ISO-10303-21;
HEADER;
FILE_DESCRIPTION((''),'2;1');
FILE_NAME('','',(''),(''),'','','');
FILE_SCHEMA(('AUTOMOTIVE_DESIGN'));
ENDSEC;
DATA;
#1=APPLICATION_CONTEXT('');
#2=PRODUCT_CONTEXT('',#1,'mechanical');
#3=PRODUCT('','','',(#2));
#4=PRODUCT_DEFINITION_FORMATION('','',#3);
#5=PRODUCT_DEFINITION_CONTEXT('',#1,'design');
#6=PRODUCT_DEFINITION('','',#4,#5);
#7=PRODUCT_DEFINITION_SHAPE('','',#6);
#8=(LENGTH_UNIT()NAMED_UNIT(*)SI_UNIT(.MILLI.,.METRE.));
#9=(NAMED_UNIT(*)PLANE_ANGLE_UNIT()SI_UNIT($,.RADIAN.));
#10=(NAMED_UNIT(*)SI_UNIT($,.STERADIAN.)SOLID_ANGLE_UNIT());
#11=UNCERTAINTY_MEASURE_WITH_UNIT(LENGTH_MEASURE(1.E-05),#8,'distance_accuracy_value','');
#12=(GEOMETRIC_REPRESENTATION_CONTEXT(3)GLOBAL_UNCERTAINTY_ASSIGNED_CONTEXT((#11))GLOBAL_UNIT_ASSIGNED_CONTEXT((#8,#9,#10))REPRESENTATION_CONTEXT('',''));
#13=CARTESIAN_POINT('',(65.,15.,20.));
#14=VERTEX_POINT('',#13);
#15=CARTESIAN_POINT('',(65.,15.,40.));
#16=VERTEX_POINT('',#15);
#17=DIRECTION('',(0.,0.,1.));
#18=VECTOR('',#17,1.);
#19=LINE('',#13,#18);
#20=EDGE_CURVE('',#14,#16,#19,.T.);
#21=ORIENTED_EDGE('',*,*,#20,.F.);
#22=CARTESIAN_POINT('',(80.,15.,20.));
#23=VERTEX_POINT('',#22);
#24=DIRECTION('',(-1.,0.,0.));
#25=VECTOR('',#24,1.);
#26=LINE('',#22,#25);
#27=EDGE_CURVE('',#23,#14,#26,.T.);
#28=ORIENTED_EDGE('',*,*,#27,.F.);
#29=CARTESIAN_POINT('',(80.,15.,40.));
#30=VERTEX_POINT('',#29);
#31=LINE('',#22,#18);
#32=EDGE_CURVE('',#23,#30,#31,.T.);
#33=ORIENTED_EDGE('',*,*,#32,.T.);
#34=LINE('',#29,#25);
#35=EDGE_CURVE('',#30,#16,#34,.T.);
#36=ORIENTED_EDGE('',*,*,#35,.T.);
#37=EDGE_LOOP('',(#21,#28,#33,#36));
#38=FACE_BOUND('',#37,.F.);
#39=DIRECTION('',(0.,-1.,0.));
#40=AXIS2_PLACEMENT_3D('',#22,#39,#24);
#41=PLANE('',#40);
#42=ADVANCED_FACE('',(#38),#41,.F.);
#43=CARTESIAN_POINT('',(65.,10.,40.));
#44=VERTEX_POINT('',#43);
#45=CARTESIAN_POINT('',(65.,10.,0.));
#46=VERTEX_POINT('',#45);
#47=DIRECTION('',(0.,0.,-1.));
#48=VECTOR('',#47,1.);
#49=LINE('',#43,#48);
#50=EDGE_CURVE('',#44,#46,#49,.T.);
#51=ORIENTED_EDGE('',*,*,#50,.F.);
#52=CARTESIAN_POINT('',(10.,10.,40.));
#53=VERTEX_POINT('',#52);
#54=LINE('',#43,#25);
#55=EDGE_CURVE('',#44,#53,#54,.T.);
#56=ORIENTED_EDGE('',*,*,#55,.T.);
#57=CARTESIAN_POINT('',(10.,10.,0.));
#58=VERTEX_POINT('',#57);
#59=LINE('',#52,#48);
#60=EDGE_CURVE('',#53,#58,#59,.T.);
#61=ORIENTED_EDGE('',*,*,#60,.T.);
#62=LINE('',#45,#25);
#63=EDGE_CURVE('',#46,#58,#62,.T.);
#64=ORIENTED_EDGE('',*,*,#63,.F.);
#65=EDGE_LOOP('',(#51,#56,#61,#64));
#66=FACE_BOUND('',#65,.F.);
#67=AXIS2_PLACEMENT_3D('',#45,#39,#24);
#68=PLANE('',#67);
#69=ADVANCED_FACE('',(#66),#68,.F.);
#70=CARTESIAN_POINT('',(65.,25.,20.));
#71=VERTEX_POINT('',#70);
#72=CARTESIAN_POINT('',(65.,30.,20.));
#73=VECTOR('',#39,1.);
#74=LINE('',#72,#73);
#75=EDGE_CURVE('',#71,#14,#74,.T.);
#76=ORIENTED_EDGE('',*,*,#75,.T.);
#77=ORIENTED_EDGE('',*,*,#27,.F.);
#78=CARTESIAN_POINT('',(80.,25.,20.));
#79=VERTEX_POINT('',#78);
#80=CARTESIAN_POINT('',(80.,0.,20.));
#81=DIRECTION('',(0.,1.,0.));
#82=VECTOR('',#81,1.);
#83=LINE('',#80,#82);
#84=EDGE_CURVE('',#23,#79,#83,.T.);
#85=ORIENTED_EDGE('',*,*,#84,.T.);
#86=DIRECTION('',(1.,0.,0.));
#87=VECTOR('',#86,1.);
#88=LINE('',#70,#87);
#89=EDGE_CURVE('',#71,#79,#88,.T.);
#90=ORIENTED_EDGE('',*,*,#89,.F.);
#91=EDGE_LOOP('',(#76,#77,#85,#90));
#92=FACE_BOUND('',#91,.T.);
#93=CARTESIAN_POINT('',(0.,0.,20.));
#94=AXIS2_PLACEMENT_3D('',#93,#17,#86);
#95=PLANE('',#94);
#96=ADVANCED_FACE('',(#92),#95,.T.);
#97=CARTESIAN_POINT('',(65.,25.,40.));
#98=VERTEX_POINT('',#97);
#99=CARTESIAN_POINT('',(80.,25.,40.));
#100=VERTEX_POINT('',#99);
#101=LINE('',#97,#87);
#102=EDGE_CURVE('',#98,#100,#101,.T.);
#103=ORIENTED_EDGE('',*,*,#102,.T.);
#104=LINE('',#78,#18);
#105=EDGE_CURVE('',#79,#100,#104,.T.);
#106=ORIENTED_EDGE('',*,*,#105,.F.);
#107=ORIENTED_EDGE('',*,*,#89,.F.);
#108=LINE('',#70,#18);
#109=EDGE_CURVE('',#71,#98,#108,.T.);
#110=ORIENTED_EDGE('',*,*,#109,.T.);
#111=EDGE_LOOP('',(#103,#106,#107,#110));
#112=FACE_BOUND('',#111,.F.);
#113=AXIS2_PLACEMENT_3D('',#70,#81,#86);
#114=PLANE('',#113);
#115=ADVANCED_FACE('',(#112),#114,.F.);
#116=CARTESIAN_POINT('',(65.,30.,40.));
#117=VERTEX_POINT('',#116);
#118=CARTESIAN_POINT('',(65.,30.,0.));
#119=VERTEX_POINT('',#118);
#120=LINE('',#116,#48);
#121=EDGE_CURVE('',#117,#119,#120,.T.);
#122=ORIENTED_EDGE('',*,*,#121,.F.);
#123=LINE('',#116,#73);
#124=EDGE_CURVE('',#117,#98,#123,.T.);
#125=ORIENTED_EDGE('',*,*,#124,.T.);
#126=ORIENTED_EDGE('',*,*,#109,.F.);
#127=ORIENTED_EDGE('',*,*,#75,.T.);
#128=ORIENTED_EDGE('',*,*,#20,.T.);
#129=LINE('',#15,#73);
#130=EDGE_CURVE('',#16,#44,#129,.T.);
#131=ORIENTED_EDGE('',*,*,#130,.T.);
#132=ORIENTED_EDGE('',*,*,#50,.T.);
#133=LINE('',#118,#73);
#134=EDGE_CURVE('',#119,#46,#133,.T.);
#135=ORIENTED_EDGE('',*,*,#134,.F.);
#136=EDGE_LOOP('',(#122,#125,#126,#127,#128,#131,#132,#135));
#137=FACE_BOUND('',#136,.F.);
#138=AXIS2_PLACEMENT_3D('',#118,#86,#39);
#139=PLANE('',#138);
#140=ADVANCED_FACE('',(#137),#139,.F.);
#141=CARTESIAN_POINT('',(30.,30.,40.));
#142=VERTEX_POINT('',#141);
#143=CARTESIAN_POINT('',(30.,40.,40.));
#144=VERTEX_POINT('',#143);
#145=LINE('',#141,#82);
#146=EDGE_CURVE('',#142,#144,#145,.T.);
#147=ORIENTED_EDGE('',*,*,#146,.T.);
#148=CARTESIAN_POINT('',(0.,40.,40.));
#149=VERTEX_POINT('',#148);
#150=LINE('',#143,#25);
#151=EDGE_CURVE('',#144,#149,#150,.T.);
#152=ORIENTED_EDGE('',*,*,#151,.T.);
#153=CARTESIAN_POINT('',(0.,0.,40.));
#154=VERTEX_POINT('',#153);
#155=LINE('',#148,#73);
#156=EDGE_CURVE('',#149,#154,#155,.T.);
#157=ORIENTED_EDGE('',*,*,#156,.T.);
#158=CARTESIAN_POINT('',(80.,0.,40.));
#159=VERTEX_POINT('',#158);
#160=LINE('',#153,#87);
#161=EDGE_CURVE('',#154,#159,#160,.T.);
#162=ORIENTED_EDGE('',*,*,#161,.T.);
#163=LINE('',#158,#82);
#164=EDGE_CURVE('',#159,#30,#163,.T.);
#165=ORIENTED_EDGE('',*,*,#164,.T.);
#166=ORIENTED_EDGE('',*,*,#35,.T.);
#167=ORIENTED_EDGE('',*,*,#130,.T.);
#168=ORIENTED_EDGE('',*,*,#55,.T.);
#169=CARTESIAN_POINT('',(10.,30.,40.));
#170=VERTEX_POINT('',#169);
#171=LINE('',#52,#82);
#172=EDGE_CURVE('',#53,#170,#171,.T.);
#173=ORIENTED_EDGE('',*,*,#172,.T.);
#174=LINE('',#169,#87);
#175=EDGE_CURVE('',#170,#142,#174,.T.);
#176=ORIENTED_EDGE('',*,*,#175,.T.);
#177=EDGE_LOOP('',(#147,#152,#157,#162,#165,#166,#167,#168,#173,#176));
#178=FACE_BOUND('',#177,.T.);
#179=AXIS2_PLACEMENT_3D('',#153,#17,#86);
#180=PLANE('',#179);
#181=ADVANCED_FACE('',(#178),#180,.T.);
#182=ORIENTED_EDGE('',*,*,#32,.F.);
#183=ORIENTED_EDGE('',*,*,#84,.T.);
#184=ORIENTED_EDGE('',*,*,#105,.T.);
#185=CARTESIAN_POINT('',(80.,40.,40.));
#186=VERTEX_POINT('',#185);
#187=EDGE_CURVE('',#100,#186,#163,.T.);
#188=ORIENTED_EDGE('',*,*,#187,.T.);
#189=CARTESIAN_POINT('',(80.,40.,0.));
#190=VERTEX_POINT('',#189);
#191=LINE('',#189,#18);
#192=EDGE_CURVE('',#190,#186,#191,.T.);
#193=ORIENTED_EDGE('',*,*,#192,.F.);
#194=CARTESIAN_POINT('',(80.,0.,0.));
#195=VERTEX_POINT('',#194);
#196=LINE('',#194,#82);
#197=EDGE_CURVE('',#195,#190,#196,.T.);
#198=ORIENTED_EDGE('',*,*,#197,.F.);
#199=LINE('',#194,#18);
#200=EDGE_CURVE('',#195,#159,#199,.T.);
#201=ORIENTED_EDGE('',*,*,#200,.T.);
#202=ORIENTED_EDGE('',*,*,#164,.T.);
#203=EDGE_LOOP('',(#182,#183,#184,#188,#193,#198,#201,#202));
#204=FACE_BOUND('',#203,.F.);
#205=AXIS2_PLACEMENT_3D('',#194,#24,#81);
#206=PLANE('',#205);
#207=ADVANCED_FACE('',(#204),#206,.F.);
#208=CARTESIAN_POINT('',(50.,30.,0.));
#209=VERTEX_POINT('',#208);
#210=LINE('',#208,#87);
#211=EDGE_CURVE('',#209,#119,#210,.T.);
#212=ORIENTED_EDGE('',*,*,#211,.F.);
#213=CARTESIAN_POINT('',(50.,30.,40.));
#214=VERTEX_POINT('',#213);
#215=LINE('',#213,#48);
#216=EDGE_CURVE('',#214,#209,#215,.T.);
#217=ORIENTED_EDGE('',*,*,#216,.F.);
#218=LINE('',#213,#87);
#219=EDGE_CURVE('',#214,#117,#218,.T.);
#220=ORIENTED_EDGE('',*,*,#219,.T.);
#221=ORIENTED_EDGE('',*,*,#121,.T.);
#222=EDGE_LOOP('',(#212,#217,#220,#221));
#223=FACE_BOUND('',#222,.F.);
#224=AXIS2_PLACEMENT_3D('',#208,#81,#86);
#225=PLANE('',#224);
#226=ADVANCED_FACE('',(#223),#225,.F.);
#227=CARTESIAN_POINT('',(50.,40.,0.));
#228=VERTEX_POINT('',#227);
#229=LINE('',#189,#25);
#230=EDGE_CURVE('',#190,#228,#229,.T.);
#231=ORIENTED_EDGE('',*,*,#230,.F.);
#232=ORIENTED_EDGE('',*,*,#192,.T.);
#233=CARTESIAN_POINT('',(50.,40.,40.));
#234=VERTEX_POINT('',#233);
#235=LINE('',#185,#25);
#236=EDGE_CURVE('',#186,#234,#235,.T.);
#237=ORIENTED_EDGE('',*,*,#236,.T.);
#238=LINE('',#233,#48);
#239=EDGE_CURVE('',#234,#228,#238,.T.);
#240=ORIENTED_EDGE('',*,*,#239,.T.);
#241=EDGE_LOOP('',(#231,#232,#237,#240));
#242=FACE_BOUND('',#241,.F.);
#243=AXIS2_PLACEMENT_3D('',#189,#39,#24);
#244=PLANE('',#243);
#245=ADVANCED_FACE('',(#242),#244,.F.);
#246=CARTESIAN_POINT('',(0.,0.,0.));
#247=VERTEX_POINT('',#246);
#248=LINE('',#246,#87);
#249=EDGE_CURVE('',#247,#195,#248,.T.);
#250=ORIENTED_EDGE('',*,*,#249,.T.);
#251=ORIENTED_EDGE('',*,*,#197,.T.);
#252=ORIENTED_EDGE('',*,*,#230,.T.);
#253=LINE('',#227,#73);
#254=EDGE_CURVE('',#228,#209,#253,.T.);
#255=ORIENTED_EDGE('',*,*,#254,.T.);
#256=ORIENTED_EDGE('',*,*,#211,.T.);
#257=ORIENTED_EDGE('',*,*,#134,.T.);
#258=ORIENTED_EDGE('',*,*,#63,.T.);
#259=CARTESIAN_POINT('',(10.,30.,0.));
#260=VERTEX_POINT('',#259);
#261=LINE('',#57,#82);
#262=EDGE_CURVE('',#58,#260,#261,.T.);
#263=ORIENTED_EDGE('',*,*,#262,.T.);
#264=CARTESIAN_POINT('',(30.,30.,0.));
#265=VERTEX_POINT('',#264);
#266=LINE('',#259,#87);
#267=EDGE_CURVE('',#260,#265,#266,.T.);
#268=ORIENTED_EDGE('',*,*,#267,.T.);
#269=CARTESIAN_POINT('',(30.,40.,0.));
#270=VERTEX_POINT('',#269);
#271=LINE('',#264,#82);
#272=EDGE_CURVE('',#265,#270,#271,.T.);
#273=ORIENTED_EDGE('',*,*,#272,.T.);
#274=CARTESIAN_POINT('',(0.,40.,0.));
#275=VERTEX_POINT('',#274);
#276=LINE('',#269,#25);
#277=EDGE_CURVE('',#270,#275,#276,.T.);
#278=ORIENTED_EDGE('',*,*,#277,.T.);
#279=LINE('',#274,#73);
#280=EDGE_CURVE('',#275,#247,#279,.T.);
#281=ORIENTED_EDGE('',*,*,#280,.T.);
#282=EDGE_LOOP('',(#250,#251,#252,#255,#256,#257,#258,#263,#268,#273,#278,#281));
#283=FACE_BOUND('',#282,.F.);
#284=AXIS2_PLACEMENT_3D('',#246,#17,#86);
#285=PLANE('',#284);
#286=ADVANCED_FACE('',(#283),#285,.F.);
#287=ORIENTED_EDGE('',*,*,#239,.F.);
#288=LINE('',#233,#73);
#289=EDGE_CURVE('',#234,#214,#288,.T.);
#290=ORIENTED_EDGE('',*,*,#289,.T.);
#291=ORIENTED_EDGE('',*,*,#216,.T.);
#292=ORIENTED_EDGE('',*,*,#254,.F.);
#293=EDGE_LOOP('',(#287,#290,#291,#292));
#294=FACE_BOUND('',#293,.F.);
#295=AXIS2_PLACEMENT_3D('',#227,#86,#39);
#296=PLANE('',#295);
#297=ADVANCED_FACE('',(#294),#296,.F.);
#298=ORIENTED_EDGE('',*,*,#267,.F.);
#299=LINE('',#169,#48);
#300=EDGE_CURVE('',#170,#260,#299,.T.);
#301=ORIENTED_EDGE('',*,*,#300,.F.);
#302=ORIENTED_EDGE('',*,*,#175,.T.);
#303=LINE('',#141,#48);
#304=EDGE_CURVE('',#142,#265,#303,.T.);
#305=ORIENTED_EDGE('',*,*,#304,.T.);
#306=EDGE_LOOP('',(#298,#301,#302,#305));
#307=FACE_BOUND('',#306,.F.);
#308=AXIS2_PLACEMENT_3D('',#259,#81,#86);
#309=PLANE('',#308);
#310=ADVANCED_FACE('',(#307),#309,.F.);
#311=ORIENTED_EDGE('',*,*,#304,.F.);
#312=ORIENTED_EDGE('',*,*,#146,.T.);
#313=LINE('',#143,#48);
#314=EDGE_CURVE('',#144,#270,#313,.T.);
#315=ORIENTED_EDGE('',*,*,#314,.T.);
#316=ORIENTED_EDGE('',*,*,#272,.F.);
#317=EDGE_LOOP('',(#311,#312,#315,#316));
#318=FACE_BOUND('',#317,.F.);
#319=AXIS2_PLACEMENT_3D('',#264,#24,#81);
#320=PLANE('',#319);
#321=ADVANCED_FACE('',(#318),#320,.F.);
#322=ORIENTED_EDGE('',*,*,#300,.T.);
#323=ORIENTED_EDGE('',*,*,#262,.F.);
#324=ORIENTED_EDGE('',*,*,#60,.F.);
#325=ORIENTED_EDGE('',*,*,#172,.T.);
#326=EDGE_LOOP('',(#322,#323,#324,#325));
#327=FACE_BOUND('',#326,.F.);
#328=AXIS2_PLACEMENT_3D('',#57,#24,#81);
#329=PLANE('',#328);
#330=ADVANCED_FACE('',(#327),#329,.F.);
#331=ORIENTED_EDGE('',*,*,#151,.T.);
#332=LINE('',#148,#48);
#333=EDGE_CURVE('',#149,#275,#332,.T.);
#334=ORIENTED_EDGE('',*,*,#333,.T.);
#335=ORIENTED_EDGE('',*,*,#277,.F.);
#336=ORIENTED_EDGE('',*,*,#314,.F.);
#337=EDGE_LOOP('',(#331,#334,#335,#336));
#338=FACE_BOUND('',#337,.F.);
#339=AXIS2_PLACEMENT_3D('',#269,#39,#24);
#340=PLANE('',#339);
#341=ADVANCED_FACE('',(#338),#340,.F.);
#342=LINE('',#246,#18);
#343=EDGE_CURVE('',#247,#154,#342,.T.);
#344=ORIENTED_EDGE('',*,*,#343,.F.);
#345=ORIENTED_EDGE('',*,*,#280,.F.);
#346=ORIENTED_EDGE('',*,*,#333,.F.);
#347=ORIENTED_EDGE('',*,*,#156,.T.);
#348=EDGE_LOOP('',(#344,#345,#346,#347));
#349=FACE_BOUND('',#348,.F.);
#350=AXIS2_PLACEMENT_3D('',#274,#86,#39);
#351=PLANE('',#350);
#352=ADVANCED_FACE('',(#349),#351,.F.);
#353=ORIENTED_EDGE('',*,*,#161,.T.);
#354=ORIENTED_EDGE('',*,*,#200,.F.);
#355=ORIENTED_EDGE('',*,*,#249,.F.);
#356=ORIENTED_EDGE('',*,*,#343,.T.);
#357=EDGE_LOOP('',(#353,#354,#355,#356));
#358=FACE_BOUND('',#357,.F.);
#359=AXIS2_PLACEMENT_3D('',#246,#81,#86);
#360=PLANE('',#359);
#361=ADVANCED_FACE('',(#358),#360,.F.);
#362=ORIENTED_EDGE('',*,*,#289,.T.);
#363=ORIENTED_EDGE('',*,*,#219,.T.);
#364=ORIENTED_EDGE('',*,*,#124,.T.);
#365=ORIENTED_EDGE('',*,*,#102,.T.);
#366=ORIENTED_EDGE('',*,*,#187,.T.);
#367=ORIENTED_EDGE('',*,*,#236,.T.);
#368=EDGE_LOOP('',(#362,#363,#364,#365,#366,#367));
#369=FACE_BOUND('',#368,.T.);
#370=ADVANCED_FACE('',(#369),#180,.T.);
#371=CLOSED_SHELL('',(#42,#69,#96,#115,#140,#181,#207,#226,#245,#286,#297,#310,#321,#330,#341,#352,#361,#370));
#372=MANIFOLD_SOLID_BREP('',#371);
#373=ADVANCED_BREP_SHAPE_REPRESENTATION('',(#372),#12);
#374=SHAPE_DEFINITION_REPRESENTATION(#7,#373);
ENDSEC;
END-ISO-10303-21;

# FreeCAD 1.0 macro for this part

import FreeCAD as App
import Part
import Sketcher

V = App.Vector

doc = App.newDocument("Part")
body = doc.addObject("PartDesign::Body", "Body")

sketch1 = body.newObject("Sketcher::SketchObject", "Sketch")
sketch1.AttachmentSupport = (doc.getObject("XY_Plane"), [""])
sketch1.MapMode = "FlatFace"
sketch1.addGeometry(Part.LineSegment(V(0, 40, 0), V(0, 0, 0)), False)
sketch1.addGeometry(Part.LineSegment(V(0, 0, 0), V(80, 0, 0)), False)
sketch1.addGeometry(Part.LineSegment(V(80, 0, 0), V(80, 40, 0)), False)
sketch1.addGeometry(Part.LineSegment(V(80, 40, 0), V(50, 40, 0)), False)
sketch1.addGeometry(Part.LineSegment(V(50, 40, 0), V(50, 30, 0)), False)
sketch1.addGeometry(Part.LineSegment(V(50, 30, 0), V(65, 30, 0)), False)
sketch1.addGeometry(Part.LineSegment(V(65, 30, 0), V(65, 10, 0)), False)
sketch1.addGeometry(Part.LineSegment(V(65, 10, 0), V(10, 10, 0)), False)
sketch1.addGeometry(Part.LineSegment(V(10, 10, 0), V(10, 30, 0)), False)
sketch1.addGeometry(Part.LineSegment(V(10, 30, 0), V(30, 30, 0)), False)
sketch1.addGeometry(Part.LineSegment(V(30, 30, 0), V(30, 40, 0)), False)
sketch1.addGeometry(Part.LineSegment(V(30, 40, 0), V(0, 40, 0)), False)
sketch1.addConstraint(Sketcher.Constraint("Coincident", 0, 2, 1, 1))
sketch1.addConstraint(Sketcher.Constraint("Coincident", 1, 2, 2, 1))
sketch1.addConstraint(Sketcher.Constraint("Coincident", 2, 2, 3, 1))
sketch1.addConstraint(Sketcher.Constraint("Coincident", 3, 2, 4, 1))
sketch1.addConstraint(Sketcher.Constraint("Coincident", 4, 2, 5, 1))
sketch1.addConstraint(Sketcher.Constraint("Coincident", 5, 2, 6, 1))
sketch1.addConstraint(Sketcher.Constraint("Coincident", 6, 2, 7, 1))
sketch1.addConstraint(Sketcher.Constraint("Coincident", 7, 2, 8, 1))
sketch1.addConstraint(Sketcher.Constraint("Coincident", 8, 2, 9, 1))
sketch1.addConstraint(Sketcher.Constraint("Coincident", 9, 2, 10, 1))
sketch1.addConstraint(Sketcher.Constraint("Coincident", 10, 2, 11, 1))
sketch1.addConstraint(Sketcher.Constraint("Coincident", 11, 2, 0, 1))
sketch1.addConstraint(Sketcher.Constraint("Vertical", 0))
sketch1.addConstraint(Sketcher.Constraint("Horizontal", 1))
sketch1.addConstraint(Sketcher.Constraint("Vertical", 2))
sketch1.addConstraint(Sketcher.Constraint("Horizontal", 3))
sketch1.addConstraint(Sketcher.Constraint("Vertical", 4))
sketch1.addConstraint(Sketcher.Constraint("Horizontal", 5))
sketch1.addConstraint(Sketcher.Constraint("Vertical", 6))
sketch1.addConstraint(Sketcher.Constraint("Horizontal", 7))
sketch1.addConstraint(Sketcher.Constraint("Vertical", 8))
sketch1.addConstraint(Sketcher.Constraint("Horizontal", 9))
sketch1.addConstraint(Sketcher.Constraint("Vertical", 10))
sketch1.addConstraint(Sketcher.Constraint("Horizontal", 11))
sketch1.addConstraint(Sketcher.Constraint("Coincident", 0, 2, -1, 1))
sketch1.addConstraint(Sketcher.Constraint("Horizontal", 5, 2, 8, 2))
sketch1.addConstraint(Sketcher.Constraint("Horizontal", 3, 2, 10, 2))
sketch1.addConstraint(Sketcher.Constraint("Equal", 3, 11))
sketch1.addConstraint(Sketcher.Constraint("Equal", 9, 6))
sketch1.addConstraint(Sketcher.Constraint("DistanceX", 1, 1, 1, 2, 80.0))
sketch1.addConstraint(Sketcher.Constraint("DistanceX", 3, 2, 3, 1, 30.0))
sketch1.addConstraint(Sketcher.Constraint("DistanceY", 0, 2, 0, 1, 40.0))
sketch1.addConstraint(Sketcher.Constraint("DistanceY", -1, 1, 4, 2, 30.0))
sketch1.addConstraint(Sketcher.Constraint("DistanceY", 6, 2, 2, 2, 30.0))
sketch1.addConstraint(Sketcher.Constraint("DistanceX", 5, 1, 5, 2, 15.0))
pad1 = body.newObject("PartDesign::Pad", "Pad")
pad1.Profile = sketch1
pad1.Length = 20

sketch2 = body.newObject("Sketcher::SketchObject", "Sketch001")
sketch2.AttachmentSupport = (doc.getObject("XY_Plane"), [""])
sketch2.MapMode = "FlatFace"
sketch2.AttachmentOffset = App.Placement(V(0, 0, 20), App.Rotation())
sketch2.addGeometry(Part.LineSegment(V(10, 30, 0), V(30, 30, 0)), False)
sketch2.addGeometry(Part.LineSegment(V(30, 30, 0), V(30, 40, 0)), False)
sketch2.addGeometry(Part.LineSegment(V(30, 40, 0), V(0, 40, 0)), False)
sketch2.addGeometry(Part.LineSegment(V(0, 40, 0), V(0, 0, 0)), False)
sketch2.addGeometry(Part.LineSegment(V(0, 0, 0), V(80, 0, 0)), False)
sketch2.addGeometry(Part.LineSegment(V(80, 0, 0), V(80, 15, 0)), False)
sketch2.addGeometry(Part.LineSegment(V(80, 15, 0), V(65, 15, 0)), False)
sketch2.addGeometry(Part.LineSegment(V(65, 15, 0), V(65, 10, 0)), False)
sketch2.addGeometry(Part.LineSegment(V(65, 10, 0), V(10, 10, 0)), False)
sketch2.addGeometry(Part.LineSegment(V(10, 10, 0), V(10, 30, 0)), False)
sketch2.addGeometry(Part.LineSegment(V(65, 30, 0), V(65, 25, 0)), False)
sketch2.addGeometry(Part.LineSegment(V(65, 25, 0), V(80, 25, 0)), False)
sketch2.addGeometry(Part.LineSegment(V(80, 25, 0), V(80, 40, 0)), False)
sketch2.addGeometry(Part.LineSegment(V(80, 40, 0), V(50, 40, 0)), False)
sketch2.addGeometry(Part.LineSegment(V(50, 40, 0), V(50, 30, 0)), False)
sketch2.addGeometry(Part.LineSegment(V(50, 30, 0), V(65, 30, 0)), False)
sketch2.addConstraint(Sketcher.Constraint("Coincident", 0, 2, 1, 1))
sketch2.addConstraint(Sketcher.Constraint("Coincident", 1, 2, 2, 1))
sketch2.addConstraint(Sketcher.Constraint("Coincident", 2, 2, 3, 1))
sketch2.addConstraint(Sketcher.Constraint("Coincident", 3, 2, 4, 1))
sketch2.addConstraint(Sketcher.Constraint("Coincident", 4, 2, 5, 1))
sketch2.addConstraint(Sketcher.Constraint("Coincident", 5, 2, 6, 1))
sketch2.addConstraint(Sketcher.Constraint("Coincident", 6, 2, 7, 1))
sketch2.addConstraint(Sketcher.Constraint("Coincident", 7, 2, 8, 1))
sketch2.addConstraint(Sketcher.Constraint("Coincident", 8, 2, 9, 1))
sketch2.addConstraint(Sketcher.Constraint("Coincident", 9, 2, 0, 1))
sketch2.addConstraint(Sketcher.Constraint("Coincident", 10, 2, 11, 1))
sketch2.addConstraint(Sketcher.Constraint("Coincident", 11, 2, 12, 1))
sketch2.addConstraint(Sketcher.Constraint("Coincident", 12, 2, 13, 1))
sketch2.addConstraint(Sketcher.Constraint("Coincident", 13, 2, 14, 1))
sketch2.addConstraint(Sketcher.Constraint("Coincident", 14, 2, 15, 1))
sketch2.addConstraint(Sketcher.Constraint("Coincident", 15, 2, 10, 1))
sketch2.addConstraint(Sketcher.Constraint("Horizontal", 0))
sketch2.addConstraint(Sketcher.Constraint("Vertical", 1))
sketch2.addConstraint(Sketcher.Constraint("Horizontal", 2))
sketch2.addConstraint(Sketcher.Constraint("Vertical", 3))
sketch2.addConstraint(Sketcher.Constraint("Horizontal", 4))
sketch2.addConstraint(Sketcher.Constraint("Vertical", 5))
sketch2.addConstraint(Sketcher.Constraint("Horizontal", 6))
sketch2.addConstraint(Sketcher.Constraint("Vertical", 7))
sketch2.addConstraint(Sketcher.Constraint("Horizontal", 8))
sketch2.addConstraint(Sketcher.Constraint("Vertical", 9))
sketch2.addConstraint(Sketcher.Constraint("Vertical", 10))
sketch2.addConstraint(Sketcher.Constraint("Horizontal", 11))
sketch2.addConstraint(Sketcher.Constraint("Vertical", 12))
sketch2.addConstraint(Sketcher.Constraint("Horizontal", 13))
sketch2.addConstraint(Sketcher.Constraint("Vertical", 14))
sketch2.addConstraint(Sketcher.Constraint("Horizontal", 15))
sketch2.addConstraint(Sketcher.Constraint("Coincident", 3, 2, -1, 1))
sketch2.addConstraint(Sketcher.Constraint("Horizontal", 2, 2, 12, 2))
sketch2.addConstraint(Sketcher.Constraint("Horizontal", 9, 2, 14, 2))
sketch2.addConstraint(Sketcher.Constraint("Vertical", 7, 2, 10, 2))
sketch2.addConstraint(Sketcher.Constraint("Vertical", 5, 2, 11, 2))
sketch2.addConstraint(Sketcher.Constraint("Equal", 2, 13))
sketch2.addConstraint(Sketcher.Constraint("Equal", 11, 15))
sketch2.addConstraint(Sketcher.Constraint("Equal", 15, 5))
sketch2.addConstraint(Sketcher.Constraint("Equal", 0, 9))
sketch2.addConstraint(Sketcher.Constraint("Equal", 7, 10))
sketch2.addConstraint(Sketcher.Constraint("Equal", 5, 12))
sketch2.addConstraint(Sketcher.Constraint("DistanceX", 0, 1, 0, 2, 20.0))
sketch2.addConstraint(Sketcher.Constraint("DistanceX", 2, 2, 2, 1, 30.0))
sketch2.addConstraint(Sketcher.Constraint("DistanceX", 4, 1, 4, 2, 80.0))
sketch2.addConstraint(Sketcher.Constraint("DistanceY", 1, 1, 1, 2, 10.0))
pad2 = body.newObject("PartDesign::Pad", "Pad001")
pad2.Profile = sketch2
pad2.Length = 20

doc.recompute()
